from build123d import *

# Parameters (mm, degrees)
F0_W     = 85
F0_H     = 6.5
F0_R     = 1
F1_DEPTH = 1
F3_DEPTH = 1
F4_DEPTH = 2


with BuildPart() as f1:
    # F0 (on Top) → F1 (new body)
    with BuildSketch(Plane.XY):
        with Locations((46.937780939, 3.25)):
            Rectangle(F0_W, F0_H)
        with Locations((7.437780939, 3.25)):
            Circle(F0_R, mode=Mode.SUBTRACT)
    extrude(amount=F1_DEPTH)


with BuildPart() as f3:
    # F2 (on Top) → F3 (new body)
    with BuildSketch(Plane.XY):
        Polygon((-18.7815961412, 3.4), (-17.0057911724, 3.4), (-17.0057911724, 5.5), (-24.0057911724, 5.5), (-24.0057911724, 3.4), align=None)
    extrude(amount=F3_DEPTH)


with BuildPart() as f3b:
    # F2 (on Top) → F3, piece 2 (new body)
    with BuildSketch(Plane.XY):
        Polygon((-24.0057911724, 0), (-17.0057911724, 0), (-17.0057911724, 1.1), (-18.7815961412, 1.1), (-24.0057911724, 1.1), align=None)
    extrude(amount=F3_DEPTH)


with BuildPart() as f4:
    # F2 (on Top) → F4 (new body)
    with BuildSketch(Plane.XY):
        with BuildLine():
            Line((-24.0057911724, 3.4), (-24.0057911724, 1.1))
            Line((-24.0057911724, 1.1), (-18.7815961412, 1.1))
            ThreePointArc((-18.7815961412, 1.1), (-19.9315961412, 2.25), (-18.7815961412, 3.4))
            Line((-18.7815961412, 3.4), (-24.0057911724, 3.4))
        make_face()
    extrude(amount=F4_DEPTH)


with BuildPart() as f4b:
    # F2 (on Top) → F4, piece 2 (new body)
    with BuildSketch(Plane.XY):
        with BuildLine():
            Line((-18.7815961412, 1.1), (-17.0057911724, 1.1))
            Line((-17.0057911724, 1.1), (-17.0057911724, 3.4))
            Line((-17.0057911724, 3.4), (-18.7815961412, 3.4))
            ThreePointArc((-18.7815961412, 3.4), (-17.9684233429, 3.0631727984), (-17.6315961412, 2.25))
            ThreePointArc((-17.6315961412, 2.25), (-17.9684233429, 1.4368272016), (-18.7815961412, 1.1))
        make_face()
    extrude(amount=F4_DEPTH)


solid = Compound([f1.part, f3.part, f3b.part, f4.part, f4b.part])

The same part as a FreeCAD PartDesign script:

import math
import FreeCAD as App
import Part
import Sketcher

V = App.Vector
Q = App.Units.Quantity

doc = App.newDocument("Part")
body = doc.addObject("PartDesign::Body", "Body")

sketch1 = body.newObject("Sketcher::SketchObject", "Sketch")
sketch1.AttachmentSupport = (doc.getObject("XY_Plane"), [""])
sketch1.MapMode = "FlatFace"
sketch1.addGeometry(Part.LineSegment(V(4.437781, 6.5, 0), V(4.437781, 0, 0)), False)
sketch1.addGeometry(Part.LineSegment(V(4.437781, 0, 0), V(89.437781, 0, 0)), False)
sketch1.addGeometry(Part.LineSegment(V(89.437781, 0, 0), V(89.437781, 6.5, 0)), False)
sketch1.addGeometry(Part.LineSegment(V(89.437781, 6.5, 0), V(4.437781, 6.5, 0)), False)
sketch1.addGeometry(Part.Circle(V(7.437781, 3.25, 0), V(0, 0, 1), 1), False)
sketch1.addConstraint(Sketcher.Constraint("Coincident", 0, 2, 1, 1))
sketch1.addConstraint(Sketcher.Constraint("Coincident", 1, 2, 2, 1))
sketch1.addConstraint(Sketcher.Constraint("Coincident", 2, 2, 3, 1))
sketch1.addConstraint(Sketcher.Constraint("Coincident", 3, 2, 0, 1))
sketch1.addConstraint(Sketcher.Constraint("Vertical", 0))
sketch1.addConstraint(Sketcher.Constraint("Horizontal", 1))
sketch1.addConstraint(Sketcher.Constraint("Vertical", 2))
sketch1.addConstraint(Sketcher.Constraint("Horizontal", 3))
sketch1.addConstraint(Sketcher.Constraint("PointOnObject", 0, 2, -1))
sketch1.addConstraint(Sketcher.Constraint("Diameter", 4, Q("2 mm")))
sketch1.addConstraint(Sketcher.Constraint("DistanceX", 1, 1, 1, 2, Q("85 mm")))
sketch1.addConstraint(Sketcher.Constraint("DistanceY", 0, 2, 0, 1, Q("6.5 mm")))
sketch1.addConstraint(Sketcher.Constraint("DistanceX", 0, 2, 4, 3, Q("3 mm")))
sketch1.addConstraint(Sketcher.Constraint("DistanceY", -1, 1, 4, 3, Q("3.25 mm")))
sketch1.addConstraint(Sketcher.Constraint("DistanceX", -1, 1, 4, 3, Q("7.437781 mm")))
pad1 = body.newObject("PartDesign::Pad", "Pad")
pad1.Profile = sketch1
pad1.Length = 1
body2 = doc.addObject("PartDesign::Body", "Body001")

sketch2 = body2.newObject("Sketcher::SketchObject", "Sketch001")
sketch2.AttachmentSupport = (doc.getObject("XY_Plane001"), [""])
sketch2.MapMode = "FlatFace"
sketch2.addGeometry(Part.LineSegment(V(-17.005791, 3.4, 0), V(-17.005791, 5.5, 0)), False)
sketch2.addGeometry(Part.LineSegment(V(-17.005791, 5.5, 0), V(-24.005791, 5.5, 0)), False)
sketch2.addGeometry(Part.LineSegment(V(-24.005791, 5.5, 0), V(-24.005791, 3.4, 0)), False)
sketch2.addGeometry(Part.LineSegment(V(-24.005791, 3.4, 0), V(-17.005791, 3.4, 0)), False)
sketch2.addConstraint(Sketcher.Constraint("Coincident", 0, 2, 1, 1))
sketch2.addConstraint(Sketcher.Constraint("Coincident", 1, 2, 2, 1))
sketch2.addConstraint(Sketcher.Constraint("Coincident", 2, 2, 3, 1))
sketch2.addConstraint(Sketcher.Constraint("Coincident", 3, 2, 0, 1))
sketch2.addConstraint(Sketcher.Constraint("Vertical", 0))
sketch2.addConstraint(Sketcher.Constraint("Horizontal", 1))
sketch2.addConstraint(Sketcher.Constraint("Vertical", 2))
sketch2.addConstraint(Sketcher.Constraint("Horizontal", 3))
sketch2.addConstraint(Sketcher.Constraint("DistanceX", 1, 2, 1, 1, Q("7 mm")))
sketch2.addConstraint(Sketcher.Constraint("DistanceY", 0, 1, 0, 2, Q("2.1 mm")))
sketch2.addConstraint(Sketcher.Constraint("DistanceY", -1, 1, 0, 2, Q("5.5 mm")))
sketch2.addConstraint(Sketcher.Constraint("DistanceX", 0, 2, -1, 1, Q("17.005791 mm")))
pad2 = body2.newObject("PartDesign::Pad", "Pad001")
pad2.Profile = sketch2
pad2.Length = 1
body3 = doc.addObject("PartDesign::Body", "Body002")

sketch3 = body3.newObject("Sketcher::SketchObject", "Sketch002")
sketch3.AttachmentSupport = (doc.getObject("XY_Plane002"), [""])
sketch3.MapMode = "FlatFace"
sketch3.addGeometry(Part.LineSegment(V(-24.005791, 0, 0), V(-17.005791, 0, 0)), False)
sketch3.addGeometry(Part.LineSegment(V(-17.005791, 0, 0), V(-17.005791, 1.1, 0)), False)
sketch3.addGeometry(Part.LineSegment(V(-17.005791, 1.1, 0), V(-24.005791, 1.1, 0)), False)
sketch3.addGeometry(Part.LineSegment(V(-24.005791, 1.1, 0), V(-24.005791, 0, 0)), False)
sketch3.addConstraint(Sketcher.Constraint("Coincident", 0, 2, 1, 1))
sketch3.addConstraint(Sketcher.Constraint("Coincident", 1, 2, 2, 1))
sketch3.addConstraint(Sketcher.Constraint("Coincident", 2, 2, 3, 1))
sketch3.addConstraint(Sketcher.Constraint("Coincident", 3, 2, 0, 1))
sketch3.addConstraint(Sketcher.Constraint("Horizontal", 0))
sketch3.addConstraint(Sketcher.Constraint("Vertical", 1))
sketch3.addConstraint(Sketcher.Constraint("Horizontal", 2))
sketch3.addConstraint(Sketcher.Constraint("Vertical", 3))
sketch3.addConstraint(Sketcher.Constraint("PointOnObject", 0, 2, -1))
sketch3.addConstraint(Sketcher.Constraint("DistanceX", 0, 1, 0, 2, Q("7 mm")))
sketch3.addConstraint(Sketcher.Constraint("DistanceY", 1, 1, 1, 2, Q("1.1 mm")))
sketch3.addConstraint(Sketcher.Constraint("DistanceX", 0, 2, -1, 1, Q("17.005791 mm")))
pad3 = body3.newObject("PartDesign::Pad", "Pad002")
pad3.Profile = sketch3
pad3.Length = 1
body4 = doc.addObject("PartDesign::Body", "Body003")

sketch4 = body4.newObject("Sketcher::SketchObject", "Sketch003")
sketch4.AttachmentSupport = (doc.getObject("XY_Plane003"), [""])
sketch4.MapMode = "FlatFace"
sketch4.addGeometry(Part.LineSegment(V(-24.005791, 3.4, 0), V(-24.005791, 1.1, 0)), False)
sketch4.addGeometry(Part.LineSegment(V(-24.005791, 1.1, 0), V(-18.781596, 1.1, 0)), False)
sketch4.addGeometry(Part.ArcOfCircle(Part.Circle(V(-18.781596, 2.25, 0), V(0, 0, 1), 1.15), math.radians(90), math.radians(270)), False)
sketch4.addGeometry(Part.LineSegment(V(-18.781596, 3.4, 0), V(-24.005791, 3.4, 0)), False)
sketch4.addConstraint(Sketcher.Constraint("Coincident", 0, 2, 1, 1))
sketch4.addConstraint(Sketcher.Constraint("Tangent", 1, 2, 2, 2))
sketch4.addConstraint(Sketcher.Constraint("Tangent", 2, 1, 3, 1))
sketch4.addConstraint(Sketcher.Constraint("Coincident", 3, 2, 0, 1))
sketch4.addConstraint(Sketcher.Constraint("Vertical", 0))
sketch4.addConstraint(Sketcher.Constraint("Horizontal", 1))
sketch4.addConstraint(Sketcher.Constraint("Horizontal", 3))
sketch4.addConstraint(Sketcher.Constraint("Radius", 2, Q("1.15 mm")))
sketch4.addConstraint(Sketcher.Constraint("DistanceY", -1, 1, 0, 2, Q("1.1 mm")))
sketch4.addConstraint(Sketcher.Constraint("DistanceX", 1, 1, 1, 2, Q("5.224195 mm")))
sketch4.addConstraint(Sketcher.Constraint("DistanceX", 0, 2, -1, 1, Q("24.005791 mm")))
pad4 = body4.newObject("PartDesign::Pad", "Pad003")
pad4.Profile = sketch4
pad4.Length = 2
body5 = doc.addObject("PartDesign::Body", "Body004")

sketch5 = body5.newObject("Sketcher::SketchObject", "Sketch004")
sketch5.AttachmentSupport = (doc.getObject("XY_Plane004"), [""])
sketch5.MapMode = "FlatFace"
sketch5.addGeometry(Part.LineSegment(V(-18.781596, 1.1, 0), V(-17.005791, 1.1, 0)), False)
sketch5.addGeometry(Part.LineSegment(V(-17.005791, 1.1, 0), V(-17.005791, 3.4, 0)), False)
sketch5.addGeometry(Part.LineSegment(V(-17.005791, 3.4, 0), V(-18.781596, 3.4, 0)), False)
sketch5.addGeometry(Part.ArcOfCircle(Part.Circle(V(-18.781596, 2.25, 0), V(0, 0, 1), 1.15), math.radians(0), math.radians(90)), False)
sketch5.addGeometry(Part.ArcOfCircle(Part.Circle(V(-18.781596, 2.25, 0), V(0, 0, 1), 1.15), math.radians(-90), math.radians(0)), False)
sketch5.addConstraint(Sketcher.Constraint("Coincident", 0, 2, 1, 1))
sketch5.addConstraint(Sketcher.Constraint("Coincident", 1, 2, 2, 1))
sketch5.addConstraint(Sketcher.Constraint("Tangent", 2, 2, 3, 2))
sketch5.addConstraint(Sketcher.Constraint("Tangent", 3, 1, 4, 2))
sketch5.addConstraint(Sketcher.Constraint("Tangent", 4, 1, 0, 1))
sketch5.addConstraint(Sketcher.Constraint("Horizontal", 0))
sketch5.addConstraint(Sketcher.Constraint("Vertical", 1))
sketch5.addConstraint(Sketcher.Constraint("Horizontal", 2))
sketch5.addConstraint(Sketcher.Constraint("Equal", 3, 4))
sketch5.addConstraint(Sketcher.Constraint("Horizontal", 4, 3, 3, 1))
sketch5.addConstraint(Sketcher.Constraint("Radius", 3, Q("1.15 mm")))
sketch5.addConstraint(Sketcher.Constraint("DistanceY", -1, 1, 0, 2, Q("1.1 mm")))
sketch5.addConstraint(Sketcher.Constraint("DistanceX", 0, 1, 0, 2, Q("1.775805 mm")))
sketch5.addConstraint(Sketcher.Constraint("DistanceX", 0, 2, -1, 1, Q("17.005791 mm")))
pad5 = body5.newObject("PartDesign::Pad", "Pad004")
pad5.Profile = sketch5
pad5.Length = 2

doc.recompute()
